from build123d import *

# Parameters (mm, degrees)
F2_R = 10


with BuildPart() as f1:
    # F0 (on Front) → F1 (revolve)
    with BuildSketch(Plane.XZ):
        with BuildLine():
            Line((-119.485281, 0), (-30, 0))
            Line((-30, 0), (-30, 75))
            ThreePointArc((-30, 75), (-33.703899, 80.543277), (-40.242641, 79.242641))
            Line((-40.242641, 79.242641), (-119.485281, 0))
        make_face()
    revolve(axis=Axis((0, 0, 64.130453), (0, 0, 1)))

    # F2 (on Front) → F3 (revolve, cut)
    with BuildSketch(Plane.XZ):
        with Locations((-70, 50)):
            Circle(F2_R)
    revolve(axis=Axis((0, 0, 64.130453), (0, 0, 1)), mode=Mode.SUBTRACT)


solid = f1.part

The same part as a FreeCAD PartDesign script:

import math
import FreeCAD as App
import Part
import Sketcher
Q = App.Units.Quantity

doc = App.newDocument("Part")
params = doc.addObject("Spreadsheet::Sheet", "Params")
for row, (alias, value) in enumerate([
    ("sketch1_radius", "6 mm"),
    ("sketch1_height", "75 mm"),
    ("revolution_angle", "360 deg"),
    ("sketch2_diameter", "20 mm"),
    ("groove_angle", "360 deg"),
], start=1):
    params.set(f"A{row}", alias)
    params.set(f"B{row}", "=" + value)
    params.setAlias(f"B{row}", alias)

body = doc.addObject("PartDesign::Body", "Body")

sketch1 = doc.addObject("Sketcher::SketchObject", "Sketch")
body.addObject(sketch1)
sketch1.AttachmentSupport = (doc.XZ_Plane, [""])
sketch1.MapMode = "FlatFace"
sketch1.addGeometry([
    Part.LineSegment(App.Vector(-119.485281, 0, 0), App.Vector(-30, 0, 0)),
    Part.LineSegment(App.Vector(-30, 0, 0), App.Vector(-30, 75, 0)),
    Part.ArcOfCircle(Part.Circle(App.Vector(-36, 75, 0), App.Vector(0, 0, 1), 6), math.radians(0.000003), math.radians(134.999996)),
    Part.LineSegment(App.Vector(-40.242641, 79.242641, 0), App.Vector(-119.485281, 0, 0)),
], False)
sketch1.addConstraint([
    Sketcher.Constraint("Coincident", 0, 2, 1, 1),
    Sketcher.Constraint("Tangent", 1, 2, 2, 1),
    Sketcher.Constraint("Tangent", 2, 2, 3, 1),
    Sketcher.Constraint("Coincident", 3, 2, 0, 1),
    Sketcher.Constraint("Horizontal", 0),
    Sketcher.Constraint("Vertical", 1),
    Sketcher.Constraint("PointOnObject", 0, 2, -1),
    Sketcher.Constraint("Radius", 2, Q("6 mm")),
    Sketcher.Constraint("DistanceY", 1, 1, 1, 2, Q("75 mm")),
    Sketcher.Constraint("Angle", 3, Q("-135 deg")),
    Sketcher.Constraint("DistanceX", 2, 3, -1, 1, Q("36 mm")),
])
sketch1.setExpression("Constraints[7]", "Params.sketch1_radius")
sketch1.setExpression("Constraints[8]", "Params.sketch1_height")
revolution = doc.addObject("PartDesign::Revolution", "Revolution")
body.addObject(revolution)
revolution.Profile = sketch1
revolution.ReferenceAxis = (sketch1, ["V_Axis"])
revolution.setExpression("Angle", "Params.revolution_angle")

sketch2 = doc.addObject("Sketcher::SketchObject", "Sketch001")
body.addObject(sketch2)
sketch2.AttachmentSupport = (doc.XZ_Plane, [""])
sketch2.MapMode = "FlatFace"
sketch2.addGeometry(Part.Circle(App.Vector(-70, 50, 0), App.Vector(0, 0, 1), 10), False)
sketch2.addConstraint([
    Sketcher.Constraint("Diameter", 0, Q("20 mm")),
    Sketcher.Constraint("DistanceX", 0, 3, -1, 1, Q("70 mm")),
    Sketcher.Constraint("DistanceY", -1, 1, 0, 3, Q("50 mm")),
])
sketch2.setExpression("Constraints[0]", "Params.sketch2_diameter")
groove = doc.addObject("PartDesign::Groove", "Groove")
body.addObject(groove)
groove.Profile = sketch2
groove.ReferenceAxis = (sketch2, ["V_Axis"])
groove.setExpression("Angle", "Params.groove_angle")

doc.recompute()
